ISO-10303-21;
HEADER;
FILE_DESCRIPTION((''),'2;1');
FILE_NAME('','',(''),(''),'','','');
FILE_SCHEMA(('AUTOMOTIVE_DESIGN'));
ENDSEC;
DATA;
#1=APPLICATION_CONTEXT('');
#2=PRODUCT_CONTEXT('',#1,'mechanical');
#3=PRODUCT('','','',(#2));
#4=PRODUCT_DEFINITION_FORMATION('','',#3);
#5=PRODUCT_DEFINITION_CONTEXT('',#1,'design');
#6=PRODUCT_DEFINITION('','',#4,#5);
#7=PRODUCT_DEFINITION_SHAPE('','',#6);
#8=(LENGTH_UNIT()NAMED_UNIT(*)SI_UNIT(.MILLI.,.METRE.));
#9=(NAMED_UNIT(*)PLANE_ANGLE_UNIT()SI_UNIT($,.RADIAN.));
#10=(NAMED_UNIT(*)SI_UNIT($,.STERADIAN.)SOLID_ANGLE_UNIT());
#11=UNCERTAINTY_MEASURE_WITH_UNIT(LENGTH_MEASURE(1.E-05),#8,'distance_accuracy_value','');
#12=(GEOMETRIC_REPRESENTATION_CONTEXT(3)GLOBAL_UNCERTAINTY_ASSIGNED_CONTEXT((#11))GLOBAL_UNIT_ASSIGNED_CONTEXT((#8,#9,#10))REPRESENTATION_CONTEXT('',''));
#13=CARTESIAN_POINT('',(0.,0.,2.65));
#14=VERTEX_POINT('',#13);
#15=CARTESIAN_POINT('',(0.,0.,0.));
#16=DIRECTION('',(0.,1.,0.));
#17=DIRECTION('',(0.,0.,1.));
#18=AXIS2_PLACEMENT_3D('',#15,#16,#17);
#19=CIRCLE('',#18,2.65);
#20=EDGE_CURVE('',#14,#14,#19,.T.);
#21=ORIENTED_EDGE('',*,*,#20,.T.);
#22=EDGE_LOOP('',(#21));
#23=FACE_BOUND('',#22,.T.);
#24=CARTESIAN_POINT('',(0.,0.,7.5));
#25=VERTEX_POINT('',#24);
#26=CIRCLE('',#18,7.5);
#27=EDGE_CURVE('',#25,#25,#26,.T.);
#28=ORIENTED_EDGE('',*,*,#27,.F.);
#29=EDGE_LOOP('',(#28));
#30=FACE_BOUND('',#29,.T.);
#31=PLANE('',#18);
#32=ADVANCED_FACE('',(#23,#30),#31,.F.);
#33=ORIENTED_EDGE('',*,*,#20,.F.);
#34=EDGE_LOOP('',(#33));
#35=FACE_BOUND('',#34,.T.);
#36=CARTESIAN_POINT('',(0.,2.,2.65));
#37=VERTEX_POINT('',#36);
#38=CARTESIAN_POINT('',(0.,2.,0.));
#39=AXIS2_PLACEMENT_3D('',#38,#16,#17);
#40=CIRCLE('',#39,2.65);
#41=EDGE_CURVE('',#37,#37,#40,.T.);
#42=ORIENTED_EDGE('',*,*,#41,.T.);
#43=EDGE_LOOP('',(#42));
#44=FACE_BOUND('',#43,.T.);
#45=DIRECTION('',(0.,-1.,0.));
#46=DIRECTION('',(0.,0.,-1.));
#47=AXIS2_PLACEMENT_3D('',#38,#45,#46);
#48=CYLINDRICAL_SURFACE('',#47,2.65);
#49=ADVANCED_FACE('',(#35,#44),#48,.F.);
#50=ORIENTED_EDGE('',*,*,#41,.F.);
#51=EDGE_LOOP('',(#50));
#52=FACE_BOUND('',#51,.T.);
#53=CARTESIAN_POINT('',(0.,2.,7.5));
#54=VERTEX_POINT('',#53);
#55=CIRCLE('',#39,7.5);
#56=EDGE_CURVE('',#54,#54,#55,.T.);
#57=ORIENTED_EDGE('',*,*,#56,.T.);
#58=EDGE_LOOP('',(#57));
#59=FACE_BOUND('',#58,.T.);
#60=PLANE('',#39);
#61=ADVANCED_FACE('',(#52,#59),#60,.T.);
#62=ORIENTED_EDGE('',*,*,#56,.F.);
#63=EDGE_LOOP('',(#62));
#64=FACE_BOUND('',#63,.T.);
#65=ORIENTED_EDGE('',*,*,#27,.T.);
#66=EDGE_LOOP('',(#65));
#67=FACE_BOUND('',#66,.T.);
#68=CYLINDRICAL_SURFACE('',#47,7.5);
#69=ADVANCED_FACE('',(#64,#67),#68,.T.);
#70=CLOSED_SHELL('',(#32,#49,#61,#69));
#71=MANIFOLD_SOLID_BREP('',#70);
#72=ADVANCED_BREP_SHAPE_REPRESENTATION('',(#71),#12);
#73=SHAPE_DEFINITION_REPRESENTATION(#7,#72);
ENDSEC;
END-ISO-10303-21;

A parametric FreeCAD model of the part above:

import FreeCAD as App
import Part
import Sketcher
Q = App.Units.Quantity

doc = App.newDocument("Part")
body = doc.addObject("PartDesign::Body", "Body")

# Sketch on XZ plane
sketch1 = body.newObject("Sketcher::SketchObject", "Sketch")
sketch1.AttachmentSupport = (doc.getObject("XZ_Plane"), [""])
sketch1.MapMode = "FlatFace"
sketch1.addGeometry(Part.Circle(App.Vector(0, 0, 0), App.Vector(0, 0, 1), 7.5), False)
sketch1.addGeometry(Part.Circle(App.Vector(0, 0, 0), App.Vector(0, 0, 1), 2.6), False)
sketch1.addConstraint(Sketcher.Constraint("Coincident", 0, 3, -1, 1))
sketch1.addConstraint(Sketcher.Constraint("Coincident", 1, 3, -1, 1))
sketch1.addConstraint(Sketcher.Constraint("Diameter", 0, Q("15 mm")))
sketch1.addConstraint(Sketcher.Constraint("Diameter", 1, Q("5.3 mm")))
pad1 = body.newObject("PartDesign::Pad", "Pad")
pad1.Profile = sketch1
pad1.Length = 2
pad1.Reversed = True

doc.recompute()
